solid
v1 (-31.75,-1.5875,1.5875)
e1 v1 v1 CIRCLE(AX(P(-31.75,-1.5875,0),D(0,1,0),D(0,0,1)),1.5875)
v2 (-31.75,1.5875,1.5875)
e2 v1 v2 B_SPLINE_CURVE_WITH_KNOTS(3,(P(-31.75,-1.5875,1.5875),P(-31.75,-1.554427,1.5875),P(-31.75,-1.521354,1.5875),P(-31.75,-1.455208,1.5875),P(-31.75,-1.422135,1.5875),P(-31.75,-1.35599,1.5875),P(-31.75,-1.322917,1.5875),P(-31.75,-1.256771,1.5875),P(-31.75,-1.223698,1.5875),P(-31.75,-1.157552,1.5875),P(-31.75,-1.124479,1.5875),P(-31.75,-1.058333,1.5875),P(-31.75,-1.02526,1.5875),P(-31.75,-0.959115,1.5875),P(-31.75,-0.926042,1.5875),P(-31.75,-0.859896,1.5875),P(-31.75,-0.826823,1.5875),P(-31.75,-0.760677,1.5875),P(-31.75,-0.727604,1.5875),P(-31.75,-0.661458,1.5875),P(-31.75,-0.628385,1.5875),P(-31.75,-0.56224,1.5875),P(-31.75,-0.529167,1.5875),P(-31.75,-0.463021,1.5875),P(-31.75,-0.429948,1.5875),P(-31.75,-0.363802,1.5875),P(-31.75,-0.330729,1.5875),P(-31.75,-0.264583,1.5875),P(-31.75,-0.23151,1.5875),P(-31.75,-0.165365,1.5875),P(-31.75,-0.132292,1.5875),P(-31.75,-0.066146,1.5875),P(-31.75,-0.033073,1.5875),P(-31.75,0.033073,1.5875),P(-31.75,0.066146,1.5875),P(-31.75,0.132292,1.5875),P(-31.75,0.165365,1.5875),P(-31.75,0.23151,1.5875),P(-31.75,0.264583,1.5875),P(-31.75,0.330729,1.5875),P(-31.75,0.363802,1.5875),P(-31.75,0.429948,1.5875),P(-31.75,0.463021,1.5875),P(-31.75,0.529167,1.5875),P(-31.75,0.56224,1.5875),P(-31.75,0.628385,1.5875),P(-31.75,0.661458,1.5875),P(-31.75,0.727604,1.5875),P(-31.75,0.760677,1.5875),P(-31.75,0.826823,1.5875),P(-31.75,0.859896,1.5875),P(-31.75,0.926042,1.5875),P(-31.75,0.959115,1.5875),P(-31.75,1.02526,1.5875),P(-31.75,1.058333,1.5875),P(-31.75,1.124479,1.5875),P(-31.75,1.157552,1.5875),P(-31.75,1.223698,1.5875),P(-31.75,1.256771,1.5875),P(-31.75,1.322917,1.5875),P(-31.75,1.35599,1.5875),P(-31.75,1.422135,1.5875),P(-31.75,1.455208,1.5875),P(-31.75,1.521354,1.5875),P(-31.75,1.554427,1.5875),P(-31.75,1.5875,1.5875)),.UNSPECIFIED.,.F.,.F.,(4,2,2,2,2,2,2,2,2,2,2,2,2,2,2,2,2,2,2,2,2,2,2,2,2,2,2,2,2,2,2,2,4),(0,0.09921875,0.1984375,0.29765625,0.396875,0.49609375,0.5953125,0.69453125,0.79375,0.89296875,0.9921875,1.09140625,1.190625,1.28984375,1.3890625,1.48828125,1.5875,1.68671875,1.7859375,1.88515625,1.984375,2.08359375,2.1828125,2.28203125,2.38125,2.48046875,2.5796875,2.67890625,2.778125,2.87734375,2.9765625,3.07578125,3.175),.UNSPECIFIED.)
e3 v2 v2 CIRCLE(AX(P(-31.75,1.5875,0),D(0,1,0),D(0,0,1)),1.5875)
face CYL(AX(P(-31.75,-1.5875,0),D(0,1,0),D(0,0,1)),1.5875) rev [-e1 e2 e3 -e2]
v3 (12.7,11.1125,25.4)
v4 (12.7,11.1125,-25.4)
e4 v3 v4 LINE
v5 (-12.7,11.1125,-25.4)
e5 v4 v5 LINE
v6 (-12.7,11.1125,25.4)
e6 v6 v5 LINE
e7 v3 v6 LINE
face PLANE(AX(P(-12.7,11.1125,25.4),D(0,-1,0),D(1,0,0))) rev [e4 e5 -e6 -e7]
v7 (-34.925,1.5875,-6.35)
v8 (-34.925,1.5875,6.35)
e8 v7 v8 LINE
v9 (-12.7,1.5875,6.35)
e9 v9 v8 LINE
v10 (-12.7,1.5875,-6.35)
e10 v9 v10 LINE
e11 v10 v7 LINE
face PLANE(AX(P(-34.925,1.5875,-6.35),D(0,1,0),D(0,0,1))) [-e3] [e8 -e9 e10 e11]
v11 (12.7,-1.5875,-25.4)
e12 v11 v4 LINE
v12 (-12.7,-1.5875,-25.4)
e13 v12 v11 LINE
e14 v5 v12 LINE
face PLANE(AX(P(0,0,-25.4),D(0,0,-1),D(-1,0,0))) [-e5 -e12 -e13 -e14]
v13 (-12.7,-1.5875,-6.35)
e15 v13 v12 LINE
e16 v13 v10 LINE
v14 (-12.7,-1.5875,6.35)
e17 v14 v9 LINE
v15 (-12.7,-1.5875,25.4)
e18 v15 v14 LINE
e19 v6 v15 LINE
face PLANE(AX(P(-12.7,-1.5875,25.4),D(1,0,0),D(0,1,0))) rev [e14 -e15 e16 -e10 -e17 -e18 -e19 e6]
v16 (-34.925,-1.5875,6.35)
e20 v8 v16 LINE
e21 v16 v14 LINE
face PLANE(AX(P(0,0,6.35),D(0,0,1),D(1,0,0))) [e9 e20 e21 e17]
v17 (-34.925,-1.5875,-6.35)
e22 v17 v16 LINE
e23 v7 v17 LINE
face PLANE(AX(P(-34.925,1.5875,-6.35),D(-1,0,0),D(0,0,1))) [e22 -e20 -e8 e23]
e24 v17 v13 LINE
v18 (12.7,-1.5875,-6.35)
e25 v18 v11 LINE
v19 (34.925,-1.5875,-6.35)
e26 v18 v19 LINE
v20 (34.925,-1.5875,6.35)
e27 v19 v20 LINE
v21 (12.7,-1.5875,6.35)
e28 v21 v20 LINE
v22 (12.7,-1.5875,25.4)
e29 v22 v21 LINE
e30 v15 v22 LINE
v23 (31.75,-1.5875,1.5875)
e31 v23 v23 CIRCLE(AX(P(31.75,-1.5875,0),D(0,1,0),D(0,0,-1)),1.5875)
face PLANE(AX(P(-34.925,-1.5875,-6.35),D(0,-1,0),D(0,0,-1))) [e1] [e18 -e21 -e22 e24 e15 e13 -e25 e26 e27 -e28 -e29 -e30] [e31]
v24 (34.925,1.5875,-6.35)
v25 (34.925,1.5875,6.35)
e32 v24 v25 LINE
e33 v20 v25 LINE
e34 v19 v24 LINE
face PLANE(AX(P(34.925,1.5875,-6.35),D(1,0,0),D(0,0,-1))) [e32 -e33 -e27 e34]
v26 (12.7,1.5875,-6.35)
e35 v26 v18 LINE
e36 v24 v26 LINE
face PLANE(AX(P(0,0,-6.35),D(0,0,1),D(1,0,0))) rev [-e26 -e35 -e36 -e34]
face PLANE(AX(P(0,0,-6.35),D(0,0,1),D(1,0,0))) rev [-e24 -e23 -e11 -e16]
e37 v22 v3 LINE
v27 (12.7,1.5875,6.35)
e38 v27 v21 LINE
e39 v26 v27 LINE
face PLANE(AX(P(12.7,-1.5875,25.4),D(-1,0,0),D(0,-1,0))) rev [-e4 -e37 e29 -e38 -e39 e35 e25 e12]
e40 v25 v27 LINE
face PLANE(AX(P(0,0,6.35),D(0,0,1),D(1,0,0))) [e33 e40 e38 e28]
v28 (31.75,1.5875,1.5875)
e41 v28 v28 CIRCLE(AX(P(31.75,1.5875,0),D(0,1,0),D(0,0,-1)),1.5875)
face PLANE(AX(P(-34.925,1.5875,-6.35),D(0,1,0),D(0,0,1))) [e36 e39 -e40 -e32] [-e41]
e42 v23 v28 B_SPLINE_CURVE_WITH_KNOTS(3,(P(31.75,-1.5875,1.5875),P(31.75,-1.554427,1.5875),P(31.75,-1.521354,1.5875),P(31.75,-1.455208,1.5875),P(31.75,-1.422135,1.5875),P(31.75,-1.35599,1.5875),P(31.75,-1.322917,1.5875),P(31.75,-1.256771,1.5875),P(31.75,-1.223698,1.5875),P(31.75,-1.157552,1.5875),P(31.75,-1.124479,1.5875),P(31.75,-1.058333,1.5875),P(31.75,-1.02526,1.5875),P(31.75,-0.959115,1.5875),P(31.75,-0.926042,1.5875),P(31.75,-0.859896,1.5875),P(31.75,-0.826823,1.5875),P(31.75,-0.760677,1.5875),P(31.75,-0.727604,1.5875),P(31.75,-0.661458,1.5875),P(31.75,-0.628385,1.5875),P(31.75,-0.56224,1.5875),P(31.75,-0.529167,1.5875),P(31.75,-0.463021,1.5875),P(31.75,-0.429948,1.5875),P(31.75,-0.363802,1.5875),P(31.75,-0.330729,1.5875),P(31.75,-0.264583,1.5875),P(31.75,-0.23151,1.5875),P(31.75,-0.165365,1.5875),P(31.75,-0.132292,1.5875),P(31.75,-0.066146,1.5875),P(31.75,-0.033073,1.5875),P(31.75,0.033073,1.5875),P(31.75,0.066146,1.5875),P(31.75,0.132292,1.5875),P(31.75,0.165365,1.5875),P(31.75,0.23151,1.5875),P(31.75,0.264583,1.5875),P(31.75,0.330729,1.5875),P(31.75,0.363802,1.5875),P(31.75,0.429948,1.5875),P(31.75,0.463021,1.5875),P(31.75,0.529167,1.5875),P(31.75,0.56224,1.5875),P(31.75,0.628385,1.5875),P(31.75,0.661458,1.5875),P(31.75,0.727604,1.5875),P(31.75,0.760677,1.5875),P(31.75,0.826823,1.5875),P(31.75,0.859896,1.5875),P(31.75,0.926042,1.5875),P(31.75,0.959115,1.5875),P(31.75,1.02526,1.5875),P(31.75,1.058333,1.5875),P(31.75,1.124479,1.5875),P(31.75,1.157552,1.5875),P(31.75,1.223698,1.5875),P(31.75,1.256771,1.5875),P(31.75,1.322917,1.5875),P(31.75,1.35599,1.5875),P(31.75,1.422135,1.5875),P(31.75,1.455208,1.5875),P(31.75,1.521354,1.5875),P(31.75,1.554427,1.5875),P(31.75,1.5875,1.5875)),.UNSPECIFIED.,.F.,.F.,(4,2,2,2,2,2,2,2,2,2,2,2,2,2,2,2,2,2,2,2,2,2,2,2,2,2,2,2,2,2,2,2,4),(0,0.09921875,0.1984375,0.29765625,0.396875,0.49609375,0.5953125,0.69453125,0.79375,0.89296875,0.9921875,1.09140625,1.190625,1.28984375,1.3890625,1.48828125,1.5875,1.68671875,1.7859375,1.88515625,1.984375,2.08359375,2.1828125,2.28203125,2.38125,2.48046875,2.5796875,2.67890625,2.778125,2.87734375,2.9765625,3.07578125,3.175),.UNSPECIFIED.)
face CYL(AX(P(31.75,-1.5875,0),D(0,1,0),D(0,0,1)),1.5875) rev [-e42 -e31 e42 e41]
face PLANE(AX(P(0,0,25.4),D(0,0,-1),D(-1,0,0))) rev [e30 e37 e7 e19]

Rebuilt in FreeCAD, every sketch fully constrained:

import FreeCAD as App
import Part
import Sketcher

V = App.Vector
Q = App.Units.Quantity

doc = App.newDocument("Part")
body = doc.addObject("PartDesign::Body", "Body")

sketch1 = body.newObject("Sketcher::SketchObject", "Sketch")
sketch1.AttachmentSupport = (doc.getObject("XY_Plane"), [""])
sketch1.MapMode = "FlatFace"
sketch1.addGeometry(Part.LineSegment(V(-34.925, 1.5875, 0), V(-34.925, -1.5875, 0)), False)
sketch1.addGeometry(Part.LineSegment(V(-34.925, -1.5875, 0), V(34.925, -1.5875, 0)), False)
sketch1.addGeometry(Part.LineSegment(V(34.925, -1.5875, 0), V(34.925, 1.5875, 0)), False)
sketch1.addGeometry(Part.LineSegment(V(34.925, 1.5875, 0), V(-34.925, 1.5875, 0)), False)
sketch1.addConstraint(Sketcher.Constraint("Coincident", 0, 2, 1, 1))
sketch1.addConstraint(Sketcher.Constraint("Coincident", 1, 2, 2, 1))
sketch1.addConstraint(Sketcher.Constraint("Coincident", 2, 2, 3, 1))
sketch1.addConstraint(Sketcher.Constraint("Coincident", 3, 2, 0, 1))
sketch1.addConstraint(Sketcher.Constraint("Vertical", 0))
sketch1.addConstraint(Sketcher.Constraint("Horizontal", 1))
sketch1.addConstraint(Sketcher.Constraint("Vertical", 2))
sketch1.addConstraint(Sketcher.Constraint("Horizontal", 3))
sketch1.addConstraint(Sketcher.Constraint("Symmetric", 0, 2, 2, 2, -1, 1))
sketch1.addConstraint(Sketcher.Constraint("DistanceX", 1, 1, 1, 2, Q("2.75 in")))
sketch1.addConstraint(Sketcher.Constraint("DistanceY", 0, 2, 0, 1, Q("0.125 in")))
pad1 = body.newObject("PartDesign::Pad", "Pad")
pad1.Profile = sketch1
pad1.Length = Q("0.5 in")
pad1.Midplane = True

sketch2 = body.newObject("Sketcher::SketchObject", "Sketch001")
sketch2.AttachmentSupport = (doc.getObject("XY_Plane"), [""])
sketch2.MapMode = "FlatFace"
sketch2.addGeometry(Part.LineSegment(V(-12.7, 11.1125, 0), V(-12.7, -1.5875, 0)), False)
sketch2.addGeometry(Part.LineSegment(V(-12.7, -1.5875, 0), V(12.7, -1.5875, 0)), False)
sketch2.addGeometry(Part.LineSegment(V(12.7, -1.5875, 0), V(12.7, 11.1125, 0)), False)
sketch2.addGeometry(Part.LineSegment(V(12.7, 11.1125, 0), V(-12.7, 11.1125, 0)), False)
sketch2.addConstraint(Sketcher.Constraint("Coincident", 0, 2, 1, 1))
sketch2.addConstraint(Sketcher.Constraint("Coincident", 1, 2, 2, 1))
sketch2.addConstraint(Sketcher.Constraint("Coincident", 2, 2, 3, 1))
sketch2.addConstraint(Sketcher.Constraint("Coincident", 3, 2, 0, 1))
sketch2.addConstraint(Sketcher.Constraint("Vertical", 0))
sketch2.addConstraint(Sketcher.Constraint("Horizontal", 1))
sketch2.addConstraint(Sketcher.Constraint("Vertical", 2))
sketch2.addConstraint(Sketcher.Constraint("Horizontal", 3))
sketch2.addConstraint(Sketcher.Constraint("DistanceX", 1, 1, 1, 2, Q("1 in")))
sketch2.addConstraint(Sketcher.Constraint("DistanceY", 0, 2, 0, 1, Q("0.5 in")))
sketch2.addConstraint(Sketcher.Constraint("DistanceX", 0, 2, -1, 1, Q("0.5 in")))
sketch2.addConstraint(Sketcher.Constraint("DistanceY", 0, 2, -1, 1, Q("0.0625 in")))
pad2 = body.newObject("PartDesign::Pad", "Pad001")
pad2.Profile = sketch2
pad2.Length = Q("2 in")
pad2.Midplane = True

sketch3 = body.newObject("Sketcher::SketchObject", "Sketch002")
sketch3.AttachmentSupport = (doc.getObject("XZ_Plane"), [""])
sketch3.MapMode = "FlatFace"
sketch3.AttachmentOffset = App.Placement(V(0, 0, -0.0625 * 25.4), App.Rotation())
sketch3.addGeometry(Part.Circle(V(-31.75, 0, 0), V(0, 0, 1), 1.5875), False)
sketch3.addGeometry(Part.Circle(V(31.75, 0, 0), V(0, 0, 1), 1.5875), False)
sketch3.addConstraint(Sketcher.Constraint("Equal", 0, 1))
sketch3.addConstraint(Sketcher.Constraint("Symmetric", 0, 3, 1, 3, -1, 1))
sketch3.addConstraint(Sketcher.Constraint("PointOnObject", 0, 3, -1))
sketch3.addConstraint(Sketcher.Constraint("Diameter", 0, Q("0.125 in")))
sketch3.addConstraint(Sketcher.Constraint("DistanceX", 0, 3, 1, 3, Q("2.5 in")))
pocket1 = body.newObject("PartDesign::Pocket", "Pocket")
pocket1.Profile = sketch3
pocket1.Type = "ThroughAll"
pocket1.Reversed = True

doc.recompute()
